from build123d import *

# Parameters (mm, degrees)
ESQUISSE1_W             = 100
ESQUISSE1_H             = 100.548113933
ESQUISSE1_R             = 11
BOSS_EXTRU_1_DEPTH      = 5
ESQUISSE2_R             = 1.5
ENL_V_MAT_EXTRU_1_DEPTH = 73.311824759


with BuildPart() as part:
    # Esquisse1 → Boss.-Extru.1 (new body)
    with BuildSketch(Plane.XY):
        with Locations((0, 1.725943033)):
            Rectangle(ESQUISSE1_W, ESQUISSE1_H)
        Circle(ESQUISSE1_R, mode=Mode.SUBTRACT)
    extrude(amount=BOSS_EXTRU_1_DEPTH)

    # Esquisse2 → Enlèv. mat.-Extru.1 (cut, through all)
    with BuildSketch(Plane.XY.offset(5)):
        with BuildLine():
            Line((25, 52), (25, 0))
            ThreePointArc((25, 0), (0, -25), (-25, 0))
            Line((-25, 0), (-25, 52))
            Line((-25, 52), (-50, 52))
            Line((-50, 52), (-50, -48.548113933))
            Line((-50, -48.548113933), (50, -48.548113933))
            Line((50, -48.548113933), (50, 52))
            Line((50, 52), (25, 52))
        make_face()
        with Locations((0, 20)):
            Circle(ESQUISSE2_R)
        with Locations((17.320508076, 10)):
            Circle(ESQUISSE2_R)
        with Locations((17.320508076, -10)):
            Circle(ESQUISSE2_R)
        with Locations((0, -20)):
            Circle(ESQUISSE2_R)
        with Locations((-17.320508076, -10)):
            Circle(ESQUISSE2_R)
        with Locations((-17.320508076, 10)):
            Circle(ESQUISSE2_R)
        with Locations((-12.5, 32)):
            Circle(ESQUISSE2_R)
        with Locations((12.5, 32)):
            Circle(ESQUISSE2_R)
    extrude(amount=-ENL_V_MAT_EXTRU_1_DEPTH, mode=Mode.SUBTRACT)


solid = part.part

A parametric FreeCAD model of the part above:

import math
import FreeCAD as App
import Part
import Sketcher

V = App.Vector

doc = App.newDocument("Part")
body = doc.addObject("PartDesign::Body", "Body")

sketch1 = body.newObject("Sketcher::SketchObject", "Sketch")
sketch1.AttachmentSupport = (doc.getObject("XY_Plane"), [""])
sketch1.MapMode = "FlatFace"
sketch1.addGeometry(Part.LineSegment(V(-50, 52, 0), V(-50, -49, 0)), False)
sketch1.addGeometry(Part.LineSegment(V(-50, -49, 0), V(50, -49, 0)), False)
sketch1.addGeometry(Part.LineSegment(V(50, -49, 0), V(50, 52, 0)), False)
sketch1.addGeometry(Part.LineSegment(V(50, 52, 0), V(-50, 52, 0)), False)
sketch1.addGeometry(Part.Circle(V(0, 0, 0), V(0, 0, 1), 11), False)
sketch1.addConstraint(Sketcher.Constraint("Coincident", 0, 2, 1, 1))
sketch1.addConstraint(Sketcher.Constraint("Coincident", 1, 2, 2, 1))
sketch1.addConstraint(Sketcher.Constraint("Coincident", 2, 2, 3, 1))
sketch1.addConstraint(Sketcher.Constraint("Coincident", 3, 2, 0, 1))
sketch1.addConstraint(Sketcher.Constraint("Vertical", 0))
sketch1.addConstraint(Sketcher.Constraint("Horizontal", 1))
sketch1.addConstraint(Sketcher.Constraint("Vertical", 2))
sketch1.addConstraint(Sketcher.Constraint("Horizontal", 3))
sketch1.addConstraint(Sketcher.Constraint("Coincident", 4, 3, -1, 1))
sketch1.addConstraint(Sketcher.Constraint("Diameter", 4, 22.0))
sketch1.addConstraint(Sketcher.Constraint("DistanceX", 1, 1, 1, 2, 100.0))
sketch1.addConstraint(Sketcher.Constraint("DistanceX", 0, 2, -1, 1, 50.0))
sketch1.addConstraint(Sketcher.Constraint("DistanceY", -1, 1, 2, 2, 52.0))
sketch1.addConstraint(Sketcher.Constraint("DistanceY", 0, 2, 0, 1, 100.548114))
pad1 = body.newObject("PartDesign::Pad", "Pad")
pad1.Profile = sketch1
pad1.Length = 5

sketch2 = body.newObject("Sketcher::SketchObject", "Sketch001")
sketch2.AttachmentSupport = (doc.getObject("XY_Plane"), [""])
sketch2.MapMode = "FlatFace"
sketch2.AttachmentOffset = App.Placement(V(0, 0, 5), App.Rotation())
sketch2.addGeometry(Part.LineSegment(V(25, 52, 0), V(25, 0, 0)), False)
sketch2.addGeometry(Part.ArcOfCircle(Part.Circle(V(0, 0, 0), V(0, 0, 1), 25), math.radians(180), math.radians(360)), False)
sketch2.addGeometry(Part.LineSegment(V(-25, 0, 0), V(-25, 52, 0)), False)
sketch2.addGeometry(Part.LineSegment(V(-25, 52, 0), V(-50, 52, 0)), False)
sketch2.addGeometry(Part.LineSegment(V(-50, 52, 0), V(-50, -48.5, 0)), False)
sketch2.addGeometry(Part.LineSegment(V(-50, -48.5, 0), V(50, -48.5, 0)), False)
sketch2.addGeometry(Part.LineSegment(V(50, -48.5, 0), V(50, 52, 0)), False)
sketch2.addGeometry(Part.LineSegment(V(50, 52, 0), V(25, 52, 0)), False)
sketch2.addGeometry(Part.Circle(V(0, 20, 0), V(0, 0, 1), 1.5), False)
sketch2.addGeometry(Part.Circle(V(17.3, 10, 0), V(0, 0, 1), 1.5), False)
sketch2.addGeometry(Part.Circle(V(17.3, -10, 0), V(0, 0, 1), 1.5), False)
sketch2.addGeometry(Part.Circle(V(0, -20, 0), V(0, 0, 1), 1.5), False)
sketch2.addGeometry(Part.Circle(V(-17.3, -10, 0), V(0, 0, 1), 1.5), False)
sketch2.addGeometry(Part.Circle(V(-17.3, 10, 0), V(0, 0, 1), 1.5), False)
sketch2.addGeometry(Part.Circle(V(-12.5, 32, 0), V(0, 0, 1), 1.5), False)
sketch2.addGeometry(Part.Circle(V(12.5, 32, 0), V(0, 0, 1), 1.5), False)
sketch2.addConstraint(Sketcher.Constraint("Tangent", 0, 2, 1, 2))
sketch2.addConstraint(Sketcher.Constraint("Tangent", 1, 1, 2, 1))
sketch2.addConstraint(Sketcher.Constraint("Coincident", 2, 2, 3, 1))
sketch2.addConstraint(Sketcher.Constraint("Coincident", 3, 2, 4, 1))
sketch2.addConstraint(Sketcher.Constraint("Coincident", 4, 2, 5, 1))
sketch2.addConstraint(Sketcher.Constraint("Coincident", 5, 2, 6, 1))
sketch2.addConstraint(Sketcher.Constraint("Coincident", 6, 2, 7, 1))
sketch2.addConstraint(Sketcher.Constraint("Coincident", 7, 2, 0, 1))
sketch2.addConstraint(Sketcher.Constraint("Vertical", 0))
sketch2.addConstraint(Sketcher.Constraint("Vertical", 2))
sketch2.addConstraint(Sketcher.Constraint("Horizontal", 3))
sketch2.addConstraint(Sketcher.Constraint("Vertical", 4))
sketch2.addConstraint(Sketcher.Constraint("Horizontal", 5))
sketch2.addConstraint(Sketcher.Constraint("Vertical", 6))
sketch2.addConstraint(Sketcher.Constraint("Horizontal", 7))
sketch2.addConstraint(Sketcher.Constraint("Coincident", 1, 3, -1, 1))
sketch2.addConstraint(Sketcher.Constraint("Equal", 8, 9))
sketch2.addConstraint(Sketcher.Constraint("Equal", 9, 10))
sketch2.addConstraint(Sketcher.Constraint("Equal", 10, 11))
sketch2.addConstraint(Sketcher.Constraint("Equal", 11, 12))
sketch2.addConstraint(Sketcher.Constraint("Equal", 12, 13))
sketch2.addConstraint(Sketcher.Constraint("Equal", 13, 14))
sketch2.addConstraint(Sketcher.Constraint("Equal", 14, 15))
sketch2.addConstraint(Sketcher.Constraint("Symmetric", 8, 3, 11, 3, -1, 1))
sketch2.addConstraint(Sketcher.Constraint("Symmetric", 9, 3, 12, 3, -1, 1))
sketch2.addConstraint(Sketcher.Constraint("Symmetric", 10, 3, 13, 3, -1, 1))
sketch2.addConstraint(Sketcher.Constraint("Symmetric", 10, 3, 12, 3, -2))
sketch2.addConstraint(Sketcher.Constraint("Symmetric", 14, 3, 15, 3, -2))
sketch2.addConstraint(Sketcher.Constraint("Symmetric", 3, 2, 6, 2, -2))
sketch2.addConstraint(Sketcher.Constraint("PointOnObject", 8, 3, -2))
sketch2.addConstraint(Sketcher.Constraint("Diameter", 8, 3.0))
sketch2.addConstraint(Sketcher.Constraint("Radius", 1, 25.0))
sketch2.addConstraint(Sketcher.Constraint("DistanceX", 3, 2, 3, 1, 25.0))
sketch2.addConstraint(Sketcher.Constraint("DistanceY", 0, 2, 0, 1, 52.0))
sketch2.addConstraint(Sketcher.Constraint("DistanceY", -1, 1, 8, 3, 20.0))
sketch2.addConstraint(Sketcher.Constraint("DistanceY", -1, 1, 9, 3, 10.0))
sketch2.addConstraint(Sketcher.Constraint("DistanceY", -1, 1, 14, 3, 32.0))
sketch2.addConstraint(Sketcher.Constraint("DistanceX", 14, 3, 15, 3, 25.0))
sketch2.addConstraint(Sketcher.Constraint("DistanceY", 4, 2, 4, 1, 100.548114))
sketch2.addConstraint(Sketcher.Constraint("DistanceX", -1, 1, 9, 3, 17.320508))
pocket1 = body.newObject("PartDesign::Pocket", "Pocket")
pocket1.Profile = sketch2
pocket1.Type = "ThroughAll"

doc.recompute()
